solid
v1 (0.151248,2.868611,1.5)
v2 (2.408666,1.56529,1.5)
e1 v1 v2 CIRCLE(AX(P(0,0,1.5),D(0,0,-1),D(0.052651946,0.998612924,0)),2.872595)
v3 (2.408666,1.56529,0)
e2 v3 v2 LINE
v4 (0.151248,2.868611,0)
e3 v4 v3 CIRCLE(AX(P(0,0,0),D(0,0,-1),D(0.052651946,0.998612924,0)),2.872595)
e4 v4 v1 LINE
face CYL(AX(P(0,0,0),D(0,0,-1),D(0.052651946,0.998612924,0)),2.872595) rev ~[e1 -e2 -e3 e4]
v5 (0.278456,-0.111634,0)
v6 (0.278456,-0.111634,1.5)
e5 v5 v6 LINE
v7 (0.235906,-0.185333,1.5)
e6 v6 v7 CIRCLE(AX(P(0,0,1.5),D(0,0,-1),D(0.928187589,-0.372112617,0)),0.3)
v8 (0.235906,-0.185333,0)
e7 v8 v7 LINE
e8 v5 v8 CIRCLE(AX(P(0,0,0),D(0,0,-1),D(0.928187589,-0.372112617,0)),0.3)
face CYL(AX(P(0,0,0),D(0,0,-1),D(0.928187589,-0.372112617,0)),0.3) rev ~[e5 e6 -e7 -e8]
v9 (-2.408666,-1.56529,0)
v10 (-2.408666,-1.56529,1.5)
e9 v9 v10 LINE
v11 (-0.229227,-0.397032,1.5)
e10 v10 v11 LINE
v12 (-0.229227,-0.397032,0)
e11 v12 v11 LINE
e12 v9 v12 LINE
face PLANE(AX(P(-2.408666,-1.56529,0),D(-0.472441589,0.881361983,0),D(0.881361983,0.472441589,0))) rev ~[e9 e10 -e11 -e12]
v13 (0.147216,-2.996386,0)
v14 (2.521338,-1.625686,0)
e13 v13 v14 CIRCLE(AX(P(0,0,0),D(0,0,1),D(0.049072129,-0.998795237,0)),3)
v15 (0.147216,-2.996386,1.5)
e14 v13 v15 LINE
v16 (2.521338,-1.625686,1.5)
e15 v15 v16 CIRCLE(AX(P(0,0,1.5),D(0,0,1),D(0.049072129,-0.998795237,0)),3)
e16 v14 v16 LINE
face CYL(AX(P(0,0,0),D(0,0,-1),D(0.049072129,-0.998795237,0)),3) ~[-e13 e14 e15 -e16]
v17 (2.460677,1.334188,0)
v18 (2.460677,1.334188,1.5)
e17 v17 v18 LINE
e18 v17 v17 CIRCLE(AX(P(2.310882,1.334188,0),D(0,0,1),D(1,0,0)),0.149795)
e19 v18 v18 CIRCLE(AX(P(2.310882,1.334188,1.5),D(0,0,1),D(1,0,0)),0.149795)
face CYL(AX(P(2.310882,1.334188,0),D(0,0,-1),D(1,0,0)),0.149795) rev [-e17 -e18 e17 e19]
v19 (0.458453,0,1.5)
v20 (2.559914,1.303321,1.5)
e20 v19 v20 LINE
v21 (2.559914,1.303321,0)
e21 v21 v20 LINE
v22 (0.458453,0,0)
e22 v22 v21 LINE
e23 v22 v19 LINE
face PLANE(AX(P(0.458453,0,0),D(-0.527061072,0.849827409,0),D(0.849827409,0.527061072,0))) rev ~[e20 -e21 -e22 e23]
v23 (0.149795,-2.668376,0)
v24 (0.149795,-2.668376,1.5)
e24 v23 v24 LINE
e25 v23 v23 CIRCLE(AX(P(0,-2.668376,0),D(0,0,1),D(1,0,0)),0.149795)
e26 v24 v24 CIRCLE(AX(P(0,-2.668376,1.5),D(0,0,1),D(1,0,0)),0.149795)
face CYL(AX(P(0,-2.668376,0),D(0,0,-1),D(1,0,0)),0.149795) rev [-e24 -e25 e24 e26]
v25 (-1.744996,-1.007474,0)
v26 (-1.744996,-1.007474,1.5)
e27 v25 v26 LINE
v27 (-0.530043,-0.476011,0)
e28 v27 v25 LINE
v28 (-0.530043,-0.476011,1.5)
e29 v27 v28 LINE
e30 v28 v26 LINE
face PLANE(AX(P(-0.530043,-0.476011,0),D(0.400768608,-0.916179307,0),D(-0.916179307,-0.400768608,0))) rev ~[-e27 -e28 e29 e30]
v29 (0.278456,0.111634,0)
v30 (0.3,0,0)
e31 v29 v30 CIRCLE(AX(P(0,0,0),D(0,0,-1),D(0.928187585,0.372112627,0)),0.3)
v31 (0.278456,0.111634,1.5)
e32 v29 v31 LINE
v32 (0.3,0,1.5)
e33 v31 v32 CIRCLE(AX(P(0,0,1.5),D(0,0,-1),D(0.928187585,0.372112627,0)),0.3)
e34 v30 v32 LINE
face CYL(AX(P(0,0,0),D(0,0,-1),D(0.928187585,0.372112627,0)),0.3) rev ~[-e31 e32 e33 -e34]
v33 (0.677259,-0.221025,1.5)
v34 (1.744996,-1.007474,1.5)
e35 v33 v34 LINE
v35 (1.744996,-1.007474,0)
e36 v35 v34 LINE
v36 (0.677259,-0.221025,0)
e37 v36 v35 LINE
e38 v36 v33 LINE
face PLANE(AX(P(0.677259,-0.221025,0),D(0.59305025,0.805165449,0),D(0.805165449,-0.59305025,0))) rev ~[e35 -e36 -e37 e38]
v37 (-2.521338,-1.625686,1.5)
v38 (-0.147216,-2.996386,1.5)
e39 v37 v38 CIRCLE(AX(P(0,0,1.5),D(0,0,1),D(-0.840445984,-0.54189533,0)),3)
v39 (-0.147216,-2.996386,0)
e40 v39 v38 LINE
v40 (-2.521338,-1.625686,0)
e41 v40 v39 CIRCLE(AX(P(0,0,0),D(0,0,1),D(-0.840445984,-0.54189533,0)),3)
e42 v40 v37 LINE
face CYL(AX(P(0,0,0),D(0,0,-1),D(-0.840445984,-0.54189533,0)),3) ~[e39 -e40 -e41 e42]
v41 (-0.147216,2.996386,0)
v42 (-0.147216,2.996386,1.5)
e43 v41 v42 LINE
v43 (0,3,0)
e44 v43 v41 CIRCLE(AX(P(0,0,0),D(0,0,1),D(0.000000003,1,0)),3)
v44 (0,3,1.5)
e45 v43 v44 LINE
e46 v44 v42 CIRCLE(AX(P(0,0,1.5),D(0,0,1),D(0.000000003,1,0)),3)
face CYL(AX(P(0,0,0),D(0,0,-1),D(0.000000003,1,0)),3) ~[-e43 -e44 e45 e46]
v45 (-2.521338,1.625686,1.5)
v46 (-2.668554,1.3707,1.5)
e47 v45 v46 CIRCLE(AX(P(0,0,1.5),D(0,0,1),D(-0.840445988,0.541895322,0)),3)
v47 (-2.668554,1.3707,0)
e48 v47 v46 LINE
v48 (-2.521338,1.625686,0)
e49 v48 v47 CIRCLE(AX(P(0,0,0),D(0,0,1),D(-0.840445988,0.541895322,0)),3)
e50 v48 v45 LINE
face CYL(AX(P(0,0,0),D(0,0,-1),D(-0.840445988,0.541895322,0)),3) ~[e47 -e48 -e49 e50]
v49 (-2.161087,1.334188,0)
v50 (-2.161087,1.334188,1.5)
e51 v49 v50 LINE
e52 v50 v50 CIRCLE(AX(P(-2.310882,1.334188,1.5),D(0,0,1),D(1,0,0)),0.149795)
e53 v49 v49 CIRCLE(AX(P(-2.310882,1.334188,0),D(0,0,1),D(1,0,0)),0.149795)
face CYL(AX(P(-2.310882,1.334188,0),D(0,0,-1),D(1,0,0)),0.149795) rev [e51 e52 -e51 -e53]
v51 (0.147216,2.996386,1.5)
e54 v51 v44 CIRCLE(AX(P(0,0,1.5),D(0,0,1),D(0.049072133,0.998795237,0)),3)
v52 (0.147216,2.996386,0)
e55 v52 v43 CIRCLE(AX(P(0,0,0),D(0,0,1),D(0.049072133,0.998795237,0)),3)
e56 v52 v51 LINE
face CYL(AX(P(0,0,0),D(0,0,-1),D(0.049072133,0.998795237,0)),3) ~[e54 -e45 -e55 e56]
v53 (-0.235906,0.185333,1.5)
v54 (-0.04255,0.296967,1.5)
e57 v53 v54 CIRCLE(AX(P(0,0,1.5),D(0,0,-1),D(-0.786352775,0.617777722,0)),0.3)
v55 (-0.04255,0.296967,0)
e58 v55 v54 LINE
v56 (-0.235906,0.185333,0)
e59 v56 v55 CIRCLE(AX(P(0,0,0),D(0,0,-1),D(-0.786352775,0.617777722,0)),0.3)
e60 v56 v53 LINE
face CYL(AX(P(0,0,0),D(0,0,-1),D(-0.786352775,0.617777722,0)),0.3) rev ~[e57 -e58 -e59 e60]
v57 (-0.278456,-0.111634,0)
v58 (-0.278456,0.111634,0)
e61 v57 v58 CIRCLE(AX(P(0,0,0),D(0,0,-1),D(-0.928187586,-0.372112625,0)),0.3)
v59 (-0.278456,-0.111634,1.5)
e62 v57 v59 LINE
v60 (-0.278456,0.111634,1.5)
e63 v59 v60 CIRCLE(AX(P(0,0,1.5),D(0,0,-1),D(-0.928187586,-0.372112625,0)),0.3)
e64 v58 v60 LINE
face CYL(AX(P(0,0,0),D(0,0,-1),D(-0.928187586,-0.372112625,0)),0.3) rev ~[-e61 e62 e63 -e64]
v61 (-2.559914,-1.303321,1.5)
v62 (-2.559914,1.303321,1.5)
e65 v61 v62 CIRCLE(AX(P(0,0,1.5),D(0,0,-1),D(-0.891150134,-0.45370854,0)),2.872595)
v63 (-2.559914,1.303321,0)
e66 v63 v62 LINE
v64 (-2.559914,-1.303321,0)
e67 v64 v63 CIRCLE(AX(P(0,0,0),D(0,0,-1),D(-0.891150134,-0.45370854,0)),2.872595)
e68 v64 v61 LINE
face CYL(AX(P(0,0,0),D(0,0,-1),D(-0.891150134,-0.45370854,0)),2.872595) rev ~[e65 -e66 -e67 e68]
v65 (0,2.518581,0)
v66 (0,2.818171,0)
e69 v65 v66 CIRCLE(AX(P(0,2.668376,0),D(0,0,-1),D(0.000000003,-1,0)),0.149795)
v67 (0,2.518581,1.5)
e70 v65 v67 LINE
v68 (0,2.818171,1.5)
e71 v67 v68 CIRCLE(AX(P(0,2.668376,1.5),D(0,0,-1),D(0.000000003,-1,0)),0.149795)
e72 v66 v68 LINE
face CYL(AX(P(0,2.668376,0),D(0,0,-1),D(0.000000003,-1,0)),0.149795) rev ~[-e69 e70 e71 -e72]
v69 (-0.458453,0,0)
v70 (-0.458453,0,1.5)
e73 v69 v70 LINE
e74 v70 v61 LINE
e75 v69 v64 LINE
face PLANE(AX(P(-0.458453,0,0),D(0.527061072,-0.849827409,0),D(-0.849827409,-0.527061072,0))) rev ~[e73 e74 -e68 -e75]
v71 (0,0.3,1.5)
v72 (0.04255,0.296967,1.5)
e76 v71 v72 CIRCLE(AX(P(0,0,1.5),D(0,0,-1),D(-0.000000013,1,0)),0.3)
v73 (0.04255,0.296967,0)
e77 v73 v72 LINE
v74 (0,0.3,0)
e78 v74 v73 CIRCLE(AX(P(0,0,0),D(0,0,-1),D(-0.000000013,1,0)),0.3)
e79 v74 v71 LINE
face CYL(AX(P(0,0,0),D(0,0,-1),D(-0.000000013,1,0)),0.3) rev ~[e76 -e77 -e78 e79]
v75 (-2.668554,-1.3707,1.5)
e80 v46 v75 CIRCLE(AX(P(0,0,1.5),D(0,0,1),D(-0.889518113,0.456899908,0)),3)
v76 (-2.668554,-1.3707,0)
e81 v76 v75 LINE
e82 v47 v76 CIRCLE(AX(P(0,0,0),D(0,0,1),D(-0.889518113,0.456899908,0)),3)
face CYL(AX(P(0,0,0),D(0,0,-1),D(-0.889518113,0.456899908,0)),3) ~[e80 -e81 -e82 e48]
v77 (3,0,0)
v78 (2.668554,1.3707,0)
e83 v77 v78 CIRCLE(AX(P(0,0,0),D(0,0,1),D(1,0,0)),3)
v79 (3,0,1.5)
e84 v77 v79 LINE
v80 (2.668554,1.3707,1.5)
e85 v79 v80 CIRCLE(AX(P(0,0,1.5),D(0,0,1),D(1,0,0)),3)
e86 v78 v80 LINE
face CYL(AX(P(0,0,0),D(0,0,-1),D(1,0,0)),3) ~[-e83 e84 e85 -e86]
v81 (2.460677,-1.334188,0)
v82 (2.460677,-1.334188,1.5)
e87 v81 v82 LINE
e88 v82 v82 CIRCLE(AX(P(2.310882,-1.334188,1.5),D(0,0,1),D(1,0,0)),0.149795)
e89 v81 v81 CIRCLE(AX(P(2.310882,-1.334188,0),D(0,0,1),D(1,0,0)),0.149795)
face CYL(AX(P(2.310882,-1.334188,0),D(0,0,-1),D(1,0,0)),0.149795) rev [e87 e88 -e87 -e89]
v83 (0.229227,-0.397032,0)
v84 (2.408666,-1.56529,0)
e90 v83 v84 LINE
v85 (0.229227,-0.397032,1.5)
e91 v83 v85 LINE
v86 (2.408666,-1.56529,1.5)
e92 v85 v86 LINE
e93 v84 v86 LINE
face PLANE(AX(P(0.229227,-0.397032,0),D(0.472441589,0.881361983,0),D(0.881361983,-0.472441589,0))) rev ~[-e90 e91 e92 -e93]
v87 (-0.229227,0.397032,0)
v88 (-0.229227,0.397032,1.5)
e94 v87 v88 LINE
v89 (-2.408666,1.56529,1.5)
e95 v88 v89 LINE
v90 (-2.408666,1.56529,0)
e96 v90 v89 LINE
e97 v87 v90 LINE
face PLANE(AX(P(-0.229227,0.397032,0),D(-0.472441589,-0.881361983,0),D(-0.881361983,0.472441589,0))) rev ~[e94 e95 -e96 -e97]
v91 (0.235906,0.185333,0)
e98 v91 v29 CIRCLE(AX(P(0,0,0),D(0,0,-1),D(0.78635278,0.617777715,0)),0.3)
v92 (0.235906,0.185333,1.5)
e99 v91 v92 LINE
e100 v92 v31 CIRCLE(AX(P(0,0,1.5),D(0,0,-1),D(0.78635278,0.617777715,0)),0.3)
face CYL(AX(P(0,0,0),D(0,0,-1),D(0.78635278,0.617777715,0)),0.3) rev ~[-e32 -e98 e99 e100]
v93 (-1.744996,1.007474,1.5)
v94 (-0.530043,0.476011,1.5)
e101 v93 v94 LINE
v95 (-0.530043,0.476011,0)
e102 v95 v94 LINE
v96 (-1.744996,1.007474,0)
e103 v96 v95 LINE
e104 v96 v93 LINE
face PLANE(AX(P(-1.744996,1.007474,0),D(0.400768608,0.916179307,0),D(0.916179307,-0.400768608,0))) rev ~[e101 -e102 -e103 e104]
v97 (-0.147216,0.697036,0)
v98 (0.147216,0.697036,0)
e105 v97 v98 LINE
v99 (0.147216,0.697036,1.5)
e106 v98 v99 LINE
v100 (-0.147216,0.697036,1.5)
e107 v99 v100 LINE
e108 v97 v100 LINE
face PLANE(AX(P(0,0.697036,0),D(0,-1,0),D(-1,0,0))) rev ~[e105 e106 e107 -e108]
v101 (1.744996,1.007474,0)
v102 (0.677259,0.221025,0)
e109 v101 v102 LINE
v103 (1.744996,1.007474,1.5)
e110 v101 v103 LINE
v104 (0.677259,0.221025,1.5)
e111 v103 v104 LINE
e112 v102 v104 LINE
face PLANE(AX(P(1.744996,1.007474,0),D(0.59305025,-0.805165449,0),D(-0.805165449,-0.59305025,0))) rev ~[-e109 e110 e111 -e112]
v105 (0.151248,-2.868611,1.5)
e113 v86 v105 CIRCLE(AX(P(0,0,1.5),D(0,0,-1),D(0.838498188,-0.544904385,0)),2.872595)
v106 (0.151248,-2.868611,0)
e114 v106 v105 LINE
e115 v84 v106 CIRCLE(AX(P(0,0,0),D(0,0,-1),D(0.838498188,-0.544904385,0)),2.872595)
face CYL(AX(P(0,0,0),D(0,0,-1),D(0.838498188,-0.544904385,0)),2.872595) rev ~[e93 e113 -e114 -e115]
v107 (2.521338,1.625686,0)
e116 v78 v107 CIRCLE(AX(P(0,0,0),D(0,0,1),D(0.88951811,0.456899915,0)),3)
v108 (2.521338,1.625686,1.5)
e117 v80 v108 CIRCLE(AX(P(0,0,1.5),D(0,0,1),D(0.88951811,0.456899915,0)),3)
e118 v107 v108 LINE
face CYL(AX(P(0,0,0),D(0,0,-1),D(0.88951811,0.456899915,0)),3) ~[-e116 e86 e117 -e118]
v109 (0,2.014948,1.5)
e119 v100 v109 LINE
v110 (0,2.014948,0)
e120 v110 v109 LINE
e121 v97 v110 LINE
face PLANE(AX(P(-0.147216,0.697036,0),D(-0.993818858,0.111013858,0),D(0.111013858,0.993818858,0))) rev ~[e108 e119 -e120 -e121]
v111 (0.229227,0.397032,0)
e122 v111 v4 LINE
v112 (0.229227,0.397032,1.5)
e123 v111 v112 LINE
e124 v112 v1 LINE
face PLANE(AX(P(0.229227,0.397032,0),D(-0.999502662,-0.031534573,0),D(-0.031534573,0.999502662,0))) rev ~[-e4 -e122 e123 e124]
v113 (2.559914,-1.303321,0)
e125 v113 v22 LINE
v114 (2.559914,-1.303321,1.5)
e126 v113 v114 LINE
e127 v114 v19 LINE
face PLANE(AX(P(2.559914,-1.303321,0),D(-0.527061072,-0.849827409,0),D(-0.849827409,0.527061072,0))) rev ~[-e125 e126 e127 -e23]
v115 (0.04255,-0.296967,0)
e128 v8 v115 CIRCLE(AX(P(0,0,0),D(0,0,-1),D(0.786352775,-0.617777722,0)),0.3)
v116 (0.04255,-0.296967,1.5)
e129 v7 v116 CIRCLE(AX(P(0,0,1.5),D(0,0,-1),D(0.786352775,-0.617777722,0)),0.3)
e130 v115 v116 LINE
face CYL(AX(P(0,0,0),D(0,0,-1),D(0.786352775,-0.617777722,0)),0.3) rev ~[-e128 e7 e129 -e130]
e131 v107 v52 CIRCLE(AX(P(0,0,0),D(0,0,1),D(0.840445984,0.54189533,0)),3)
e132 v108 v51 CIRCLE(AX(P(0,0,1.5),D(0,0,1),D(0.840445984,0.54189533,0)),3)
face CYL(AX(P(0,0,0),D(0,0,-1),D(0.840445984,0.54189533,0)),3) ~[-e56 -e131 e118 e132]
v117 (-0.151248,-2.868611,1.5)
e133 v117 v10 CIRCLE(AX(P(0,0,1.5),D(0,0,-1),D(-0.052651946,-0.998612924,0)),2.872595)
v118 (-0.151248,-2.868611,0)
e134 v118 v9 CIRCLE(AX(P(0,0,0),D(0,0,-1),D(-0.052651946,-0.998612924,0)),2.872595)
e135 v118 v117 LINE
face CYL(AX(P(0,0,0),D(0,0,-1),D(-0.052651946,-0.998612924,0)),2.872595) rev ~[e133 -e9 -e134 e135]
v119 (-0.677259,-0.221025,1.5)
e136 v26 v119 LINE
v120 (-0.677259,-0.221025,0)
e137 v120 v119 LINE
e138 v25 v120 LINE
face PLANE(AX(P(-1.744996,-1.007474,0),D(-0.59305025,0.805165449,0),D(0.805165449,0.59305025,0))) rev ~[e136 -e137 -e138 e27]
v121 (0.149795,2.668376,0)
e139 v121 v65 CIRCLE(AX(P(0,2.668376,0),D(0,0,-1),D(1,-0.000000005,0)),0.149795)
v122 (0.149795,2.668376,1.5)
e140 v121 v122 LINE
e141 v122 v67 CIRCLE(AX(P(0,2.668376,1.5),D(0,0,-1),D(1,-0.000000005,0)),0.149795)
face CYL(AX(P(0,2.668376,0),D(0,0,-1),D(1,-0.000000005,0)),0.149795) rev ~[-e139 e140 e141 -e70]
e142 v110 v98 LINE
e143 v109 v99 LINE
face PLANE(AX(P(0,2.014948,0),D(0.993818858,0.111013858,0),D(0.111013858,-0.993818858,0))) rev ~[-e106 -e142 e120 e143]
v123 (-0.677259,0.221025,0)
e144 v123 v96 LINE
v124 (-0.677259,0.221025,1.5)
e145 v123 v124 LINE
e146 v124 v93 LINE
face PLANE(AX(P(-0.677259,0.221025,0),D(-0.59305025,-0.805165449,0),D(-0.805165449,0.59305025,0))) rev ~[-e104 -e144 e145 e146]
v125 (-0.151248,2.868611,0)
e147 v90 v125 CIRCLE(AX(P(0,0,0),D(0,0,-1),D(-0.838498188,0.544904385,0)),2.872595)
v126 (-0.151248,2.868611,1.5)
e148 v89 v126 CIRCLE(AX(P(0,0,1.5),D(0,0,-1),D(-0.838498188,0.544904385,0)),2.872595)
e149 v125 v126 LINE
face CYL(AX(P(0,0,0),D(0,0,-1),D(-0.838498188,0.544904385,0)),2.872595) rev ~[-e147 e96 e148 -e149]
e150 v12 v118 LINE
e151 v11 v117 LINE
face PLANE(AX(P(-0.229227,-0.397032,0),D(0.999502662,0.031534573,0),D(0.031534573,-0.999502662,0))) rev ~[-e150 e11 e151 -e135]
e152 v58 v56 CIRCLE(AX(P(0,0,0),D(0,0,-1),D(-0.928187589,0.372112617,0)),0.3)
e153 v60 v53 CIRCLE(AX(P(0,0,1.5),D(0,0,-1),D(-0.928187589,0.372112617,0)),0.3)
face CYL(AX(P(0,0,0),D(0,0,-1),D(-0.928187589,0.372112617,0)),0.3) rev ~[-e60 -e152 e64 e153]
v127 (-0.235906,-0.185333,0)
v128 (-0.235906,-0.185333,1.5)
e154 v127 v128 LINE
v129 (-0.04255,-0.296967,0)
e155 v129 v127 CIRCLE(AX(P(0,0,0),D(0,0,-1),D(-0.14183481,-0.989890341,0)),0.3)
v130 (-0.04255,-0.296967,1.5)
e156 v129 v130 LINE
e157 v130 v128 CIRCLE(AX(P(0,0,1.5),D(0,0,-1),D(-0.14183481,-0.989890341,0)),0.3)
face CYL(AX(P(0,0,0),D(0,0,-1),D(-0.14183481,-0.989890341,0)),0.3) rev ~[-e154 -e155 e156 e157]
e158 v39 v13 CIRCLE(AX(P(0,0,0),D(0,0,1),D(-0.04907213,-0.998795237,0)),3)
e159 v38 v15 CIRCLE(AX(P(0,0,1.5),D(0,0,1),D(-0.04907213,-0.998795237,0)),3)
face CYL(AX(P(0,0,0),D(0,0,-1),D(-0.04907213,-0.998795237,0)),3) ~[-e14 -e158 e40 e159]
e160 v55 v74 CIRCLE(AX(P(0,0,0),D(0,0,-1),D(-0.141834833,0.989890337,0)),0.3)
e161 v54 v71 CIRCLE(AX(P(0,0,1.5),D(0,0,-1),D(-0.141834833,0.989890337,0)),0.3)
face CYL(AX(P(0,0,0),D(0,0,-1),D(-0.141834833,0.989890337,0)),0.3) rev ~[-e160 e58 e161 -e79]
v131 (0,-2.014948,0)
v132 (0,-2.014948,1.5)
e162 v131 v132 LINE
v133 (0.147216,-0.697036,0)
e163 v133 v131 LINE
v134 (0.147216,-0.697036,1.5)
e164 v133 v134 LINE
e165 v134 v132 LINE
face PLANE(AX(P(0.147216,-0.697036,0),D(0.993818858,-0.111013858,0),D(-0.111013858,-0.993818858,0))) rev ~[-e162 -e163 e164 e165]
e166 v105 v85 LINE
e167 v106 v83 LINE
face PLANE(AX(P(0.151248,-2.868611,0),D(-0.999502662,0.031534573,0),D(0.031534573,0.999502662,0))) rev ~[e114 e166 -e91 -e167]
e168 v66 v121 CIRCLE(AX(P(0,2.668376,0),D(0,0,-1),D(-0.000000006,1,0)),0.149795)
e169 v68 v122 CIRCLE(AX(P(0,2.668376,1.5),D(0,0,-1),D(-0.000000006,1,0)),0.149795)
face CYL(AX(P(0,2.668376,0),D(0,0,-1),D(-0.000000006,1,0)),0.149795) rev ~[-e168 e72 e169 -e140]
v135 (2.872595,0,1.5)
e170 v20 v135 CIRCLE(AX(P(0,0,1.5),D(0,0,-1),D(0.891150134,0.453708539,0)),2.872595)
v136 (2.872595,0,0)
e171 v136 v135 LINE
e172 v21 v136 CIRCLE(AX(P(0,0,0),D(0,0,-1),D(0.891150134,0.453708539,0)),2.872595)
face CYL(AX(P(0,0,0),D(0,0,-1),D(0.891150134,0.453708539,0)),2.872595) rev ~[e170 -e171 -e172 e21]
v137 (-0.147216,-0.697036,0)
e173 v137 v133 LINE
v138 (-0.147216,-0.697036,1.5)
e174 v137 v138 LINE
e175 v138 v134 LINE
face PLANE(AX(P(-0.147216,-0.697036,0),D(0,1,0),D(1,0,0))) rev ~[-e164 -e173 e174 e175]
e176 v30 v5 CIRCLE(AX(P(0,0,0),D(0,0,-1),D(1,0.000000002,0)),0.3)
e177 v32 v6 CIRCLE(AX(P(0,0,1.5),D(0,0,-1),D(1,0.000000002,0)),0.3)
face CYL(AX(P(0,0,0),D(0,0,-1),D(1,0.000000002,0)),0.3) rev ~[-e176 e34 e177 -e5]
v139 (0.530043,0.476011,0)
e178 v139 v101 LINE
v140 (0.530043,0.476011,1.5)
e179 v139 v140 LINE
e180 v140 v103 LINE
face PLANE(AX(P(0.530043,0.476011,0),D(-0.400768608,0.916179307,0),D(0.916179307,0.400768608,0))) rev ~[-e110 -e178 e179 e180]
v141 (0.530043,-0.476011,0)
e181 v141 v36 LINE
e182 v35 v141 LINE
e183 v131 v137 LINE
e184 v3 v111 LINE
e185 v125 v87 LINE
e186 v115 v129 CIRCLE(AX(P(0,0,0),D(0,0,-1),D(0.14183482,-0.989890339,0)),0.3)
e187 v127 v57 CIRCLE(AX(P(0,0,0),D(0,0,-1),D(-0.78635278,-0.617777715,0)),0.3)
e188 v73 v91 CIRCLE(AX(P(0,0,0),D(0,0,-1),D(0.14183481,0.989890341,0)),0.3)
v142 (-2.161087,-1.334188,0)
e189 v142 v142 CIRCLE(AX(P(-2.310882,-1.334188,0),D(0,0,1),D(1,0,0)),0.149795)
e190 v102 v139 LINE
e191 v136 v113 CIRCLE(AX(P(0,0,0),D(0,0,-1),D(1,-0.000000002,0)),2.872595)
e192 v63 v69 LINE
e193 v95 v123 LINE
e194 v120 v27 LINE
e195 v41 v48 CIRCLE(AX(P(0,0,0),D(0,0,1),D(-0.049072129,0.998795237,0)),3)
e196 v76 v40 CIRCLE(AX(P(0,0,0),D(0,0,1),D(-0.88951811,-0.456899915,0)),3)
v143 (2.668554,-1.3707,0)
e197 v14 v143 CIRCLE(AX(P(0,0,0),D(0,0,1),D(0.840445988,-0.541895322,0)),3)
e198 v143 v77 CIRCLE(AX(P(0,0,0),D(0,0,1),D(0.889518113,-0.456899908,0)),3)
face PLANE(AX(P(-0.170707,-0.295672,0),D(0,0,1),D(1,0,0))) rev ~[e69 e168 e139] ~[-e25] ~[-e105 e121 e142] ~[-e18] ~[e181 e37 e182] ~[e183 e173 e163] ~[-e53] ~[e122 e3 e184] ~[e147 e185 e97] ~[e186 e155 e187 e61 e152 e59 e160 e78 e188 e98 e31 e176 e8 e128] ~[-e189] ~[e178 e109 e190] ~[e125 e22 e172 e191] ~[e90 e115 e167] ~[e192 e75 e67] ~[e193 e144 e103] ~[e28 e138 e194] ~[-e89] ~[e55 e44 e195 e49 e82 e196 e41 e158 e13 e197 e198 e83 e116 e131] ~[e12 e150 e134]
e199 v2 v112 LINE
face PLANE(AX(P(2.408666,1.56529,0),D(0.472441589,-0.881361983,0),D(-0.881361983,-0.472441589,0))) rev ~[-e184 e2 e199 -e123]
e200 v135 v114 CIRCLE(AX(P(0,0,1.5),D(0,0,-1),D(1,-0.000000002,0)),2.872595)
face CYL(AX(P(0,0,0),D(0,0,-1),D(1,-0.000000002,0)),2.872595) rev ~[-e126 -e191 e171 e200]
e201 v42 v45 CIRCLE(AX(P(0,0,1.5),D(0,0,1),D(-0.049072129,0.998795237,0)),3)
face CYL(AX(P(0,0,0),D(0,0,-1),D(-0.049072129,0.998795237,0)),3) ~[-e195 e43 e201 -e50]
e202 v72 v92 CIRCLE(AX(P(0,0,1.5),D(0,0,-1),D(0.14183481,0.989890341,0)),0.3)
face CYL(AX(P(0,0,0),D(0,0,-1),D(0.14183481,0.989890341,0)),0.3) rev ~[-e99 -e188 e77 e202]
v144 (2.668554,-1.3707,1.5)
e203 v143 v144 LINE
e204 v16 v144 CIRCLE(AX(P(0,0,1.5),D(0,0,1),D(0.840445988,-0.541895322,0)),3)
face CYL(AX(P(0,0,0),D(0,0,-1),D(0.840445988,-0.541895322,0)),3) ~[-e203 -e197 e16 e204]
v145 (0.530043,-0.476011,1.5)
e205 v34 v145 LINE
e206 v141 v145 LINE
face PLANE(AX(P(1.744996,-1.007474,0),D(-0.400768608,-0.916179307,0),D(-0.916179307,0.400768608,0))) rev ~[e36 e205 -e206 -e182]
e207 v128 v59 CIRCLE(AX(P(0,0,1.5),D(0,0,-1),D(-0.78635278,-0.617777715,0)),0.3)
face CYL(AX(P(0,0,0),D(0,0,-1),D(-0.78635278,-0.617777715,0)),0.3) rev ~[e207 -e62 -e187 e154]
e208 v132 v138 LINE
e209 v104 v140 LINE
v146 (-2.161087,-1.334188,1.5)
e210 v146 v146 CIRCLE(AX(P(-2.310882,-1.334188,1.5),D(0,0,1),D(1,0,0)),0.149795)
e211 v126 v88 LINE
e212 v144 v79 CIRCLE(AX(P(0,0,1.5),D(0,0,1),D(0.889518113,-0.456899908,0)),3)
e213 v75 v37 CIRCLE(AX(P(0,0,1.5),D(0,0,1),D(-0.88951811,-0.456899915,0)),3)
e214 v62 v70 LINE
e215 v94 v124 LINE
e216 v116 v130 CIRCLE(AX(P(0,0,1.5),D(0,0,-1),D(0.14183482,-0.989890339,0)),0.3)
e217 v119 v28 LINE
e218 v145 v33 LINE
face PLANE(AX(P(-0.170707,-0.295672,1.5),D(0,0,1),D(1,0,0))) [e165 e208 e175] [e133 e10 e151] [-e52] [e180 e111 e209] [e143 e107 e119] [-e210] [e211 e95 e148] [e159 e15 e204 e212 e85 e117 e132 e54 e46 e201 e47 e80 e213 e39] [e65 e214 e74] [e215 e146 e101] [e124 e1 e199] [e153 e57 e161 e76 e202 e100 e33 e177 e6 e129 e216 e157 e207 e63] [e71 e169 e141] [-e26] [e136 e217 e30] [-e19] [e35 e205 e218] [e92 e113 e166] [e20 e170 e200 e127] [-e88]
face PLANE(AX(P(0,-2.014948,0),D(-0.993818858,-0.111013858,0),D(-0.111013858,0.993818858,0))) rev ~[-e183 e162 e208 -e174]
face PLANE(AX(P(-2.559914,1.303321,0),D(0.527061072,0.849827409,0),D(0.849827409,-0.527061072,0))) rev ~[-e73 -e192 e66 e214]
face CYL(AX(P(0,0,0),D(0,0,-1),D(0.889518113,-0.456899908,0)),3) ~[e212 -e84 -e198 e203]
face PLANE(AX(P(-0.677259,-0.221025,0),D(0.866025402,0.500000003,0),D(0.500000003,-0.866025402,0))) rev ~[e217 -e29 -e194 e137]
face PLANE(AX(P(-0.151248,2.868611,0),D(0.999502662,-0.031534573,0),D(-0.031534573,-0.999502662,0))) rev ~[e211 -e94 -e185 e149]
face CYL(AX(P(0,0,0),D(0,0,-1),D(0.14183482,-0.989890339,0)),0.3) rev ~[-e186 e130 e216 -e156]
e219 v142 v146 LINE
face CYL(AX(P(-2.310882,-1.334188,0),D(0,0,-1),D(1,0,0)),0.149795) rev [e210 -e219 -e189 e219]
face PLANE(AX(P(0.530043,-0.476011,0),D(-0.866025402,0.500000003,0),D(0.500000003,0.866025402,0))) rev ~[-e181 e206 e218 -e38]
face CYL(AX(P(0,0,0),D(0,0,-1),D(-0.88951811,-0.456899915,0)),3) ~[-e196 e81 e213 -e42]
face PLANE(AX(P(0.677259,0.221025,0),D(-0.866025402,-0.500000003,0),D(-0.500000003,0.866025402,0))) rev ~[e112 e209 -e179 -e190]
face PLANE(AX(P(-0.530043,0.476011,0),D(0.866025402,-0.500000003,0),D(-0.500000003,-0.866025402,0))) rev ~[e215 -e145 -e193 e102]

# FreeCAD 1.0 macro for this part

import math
import FreeCAD as App
import Part
import Sketcher
from FreeCAD import Vector
Q = App.Units.Quantity


def add_polygon(sketch, points):
    """Adds a closed chain of lines whose ends are joined by coincident constraints."""
    first, n = sketch.GeometryCount, len(points)
    for a, b in zip(points, points[1:] + points[:1]):
        sketch.addGeometry(Part.LineSegment(App.Vector(*a, 0), App.Vector(*b, 0)), False)
    for i in range(n):
        sketch.addConstraint(Sketcher.Constraint("Coincident", first + i, 2, first + (i + 1) % n, 1))

doc = App.newDocument("Part")
body = doc.addObject("PartDesign::Body", "Body")

# Sketch on XY plane
sketch1 = doc.addObject("Sketcher::SketchObject", "Sketch")
body.addObject(sketch1)
sketch1.AttachmentSupport = (doc.XY_Plane, [""])
sketch1.MapMode = "FlatFace"
sketch1.addGeometry(Part.ArcOfCircle(Part.Circle(Vector(0, 0, 0), Vector(0, 0, 1), 3), math.radians(93), math.radians(147)), False)  # 0
sketch1.addGeometry(Part.ArcOfCircle(Part.Circle(Vector(0, 0, 0), Vector(0, 0, 1), 3), math.radians(147.19), math.radians(152.81)), False)  # 1
sketch1.addGeometry(Part.ArcOfCircle(Part.Circle(Vector(0, 0, 0), Vector(0, 0, 1), 3), math.radians(153), math.radians(207)), False)  # 2
sketch1.addGeometry(Part.ArcOfCircle(Part.Circle(Vector(0, 0, 0), Vector(0, 0, 1), 3), math.radians(-152.81), math.radians(-147.19)), False)  # 3
sketch1.addGeometry(Part.ArcOfCircle(Part.Circle(Vector(0, 0, 0), Vector(0, 0, 1), 3), math.radians(-147), math.radians(-93)), False)  # 4
sketch1.addGeometry(Part.ArcOfCircle(Part.Circle(Vector(0, 0, 0), Vector(0, 0, 1), 3), math.radians(-92.81), math.radians(-87.19)), False)  # 5
sketch1.addGeometry(Part.ArcOfCircle(Part.Circle(Vector(0, 0, 0), Vector(0, 0, 1), 3), math.radians(-87), math.radians(-33)), False)  # 6
sketch1.addGeometry(Part.ArcOfCircle(Part.Circle(Vector(0, 0, 0), Vector(0, 0, 1), 3), math.radians(-32.81), math.radians(-27.19)), False)  # 7
sketch1.addGeometry(Part.ArcOfCircle(Part.Circle(Vector(0, 0, 0), Vector(0, 0, 1), 3), math.radians(-27), math.radians(0)), False)  # 8
sketch1.addGeometry(Part.ArcOfCircle(Part.Circle(Vector(0, 0, 0), Vector(0, 0, 1), 3), math.radians(0), math.radians(27)), False)  # 9
sketch1.addGeometry(Part.ArcOfCircle(Part.Circle(Vector(0, 0, 0), Vector(0, 0, 1), 3), math.radians(27.19), math.radians(32.81)), False)  # 10
sketch1.addGeometry(Part.ArcOfCircle(Part.Circle(Vector(0, 0, 0), Vector(0, 0, 1), 3), math.radians(33), math.radians(87)), False)  # 11
sketch1.addGeometry(Part.ArcOfCircle(Part.Circle(Vector(0, 0, 0), Vector(0, 0, 1), 3), math.radians(87.19), math.radians(90)), False)  # 12
sketch1.addGeometry(Part.ArcOfCircle(Part.Circle(Vector(0, 0, 0), Vector(0, 0, 1), 3), math.radians(90), math.radians(92.81)), False)  # 13
sketch1.addGeometry(Part.ArcOfCircle(Part.Circle(Vector(0, 0, 0), Vector(0, 0, 1), 2.873), math.radians(93), math.radians(147)), False)  # 14
sketch1.addGeometry(Part.LineSegment(Vector(-0.151, 2.869, 0), Vector(-0.229, 0.397, 0)), False)  # 15
sketch1.addGeometry(Part.LineSegment(Vector(-0.229, 0.397, 0), Vector(-2.409, 1.565, 0)), False)  # 16
sketch1.addGeometry(Part.ArcOfCircle(Part.Circle(Vector(0, 2.668, 0), Vector(0, 0, 1), 0.15), math.radians(90), math.radians(270)), False)  # 17
sketch1.addGeometry(Part.ArcOfCircle(Part.Circle(Vector(0, 2.668, 0), Vector(0, 0, 1), 0.15), math.radians(0), math.radians(90)), False)  # 18
sketch1.addGeometry(Part.ArcOfCircle(Part.Circle(Vector(0, 2.668, 0), Vector(0, 0, 1), 0.15), math.radians(-90), math.radians(0)), False)  # 19
sketch1.addGeometry(Part.ArcOfCircle(Part.Circle(Vector(0, 0, 0), Vector(0, 0, 1), 0.3), math.radians(90), math.radians(98.15)), False)  # 20
sketch1.addGeometry(Part.ArcOfCircle(Part.Circle(Vector(0, 0, 0), Vector(0, 0, 1), 0.3), math.radians(81.85), math.radians(90)), False)  # 21
sketch1.addGeometry(Part.ArcOfCircle(Part.Circle(Vector(0, 0, 0), Vector(0, 0, 1), 0.3), math.radians(38), math.radians(82)), False)  # 22
sketch1.addGeometry(Part.ArcOfCircle(Part.Circle(Vector(0, 0, 0), Vector(0, 0, 1), 0.3), math.radians(21.85), math.radians(38.15)), False)  # 23
sketch1.addGeometry(Part.ArcOfCircle(Part.Circle(Vector(0, 0, 0), Vector(0, 0, 1), 0.3), math.radians(0), math.radians(22)), False)  # 24
sketch1.addGeometry(Part.ArcOfCircle(Part.Circle(Vector(0, 0, 0), Vector(0, 0, 1), 0.3), math.radians(-22), math.radians(0)), False)  # 25
sketch1.addGeometry(Part.ArcOfCircle(Part.Circle(Vector(0, 0, 0), Vector(0, 0, 1), 0.3), math.radians(-38.15), math.radians(-21.85)), False)  # 26
sketch1.addGeometry(Part.ArcOfCircle(Part.Circle(Vector(0, 0, 0), Vector(0, 0, 1), 0.3), math.radians(-82), math.radians(-38)), False)  # 27
sketch1.addGeometry(Part.ArcOfCircle(Part.Circle(Vector(0, 0, 0), Vector(0, 0, 1), 0.3), math.radians(-98.15), math.radians(-81.85)), False)  # 28
sketch1.addGeometry(Part.ArcOfCircle(Part.Circle(Vector(0, 0, 0), Vector(0, 0, 1), 0.3), math.radians(-142), math.radians(-98)), False)  # 29
sketch1.addGeometry(Part.ArcOfCircle(Part.Circle(Vector(0, 0, 0), Vector(0, 0, 1), 0.3), math.radians(-158.15), math.radians(-141.85)), False)  # 30
sketch1.addGeometry(Part.ArcOfCircle(Part.Circle(Vector(0, 0, 0), Vector(0, 0, 1), 0.3), math.radians(158), math.radians(202)), False)  # 31
sketch1.addGeometry(Part.ArcOfCircle(Part.Circle(Vector(0, 0, 0), Vector(0, 0, 1), 0.3), math.radians(141.85), math.radians(158.15)), False)  # 32
sketch1.addGeometry(Part.ArcOfCircle(Part.Circle(Vector(0, 0, 0), Vector(0, 0, 1), 0.3), math.radians(98), math.radians(142)), False)  # 33
add_polygon(sketch1, [(-0.147, 0.697), (0, 2.015), (0.147, 0.697)])  # lines 34-36
sketch1.addGeometry(Part.Circle(Vector(-2.311, 1.334, 0), Vector(0, 0, 1), 0.15), False)  # 37
sketch1.addGeometry(Part.LineSegment(Vector(-2.56, 1.303, 0), Vector(-0.458, 0, 0)), False)  # 38
sketch1.addGeometry(Part.LineSegment(Vector(-0.458, 0, 0), Vector(-2.56, -1.303, 0)), False)  # 39
sketch1.addGeometry(Part.ArcOfCircle(Part.Circle(Vector(0, 0, 0), Vector(0, 0, 1), 2.873), math.radians(153), math.radians(207)), False)  # 40
add_polygon(sketch1, [(-1.745, 1.007), (-0.53, 0.476), (-0.677, 0.221)])  # lines 41-43
sketch1.addGeometry(Part.ArcOfCircle(Part.Circle(Vector(0, 0, 0), Vector(0, 0, 1), 2.873), math.radians(33), math.radians(87)), False)  # 44
sketch1.addGeometry(Part.LineSegment(Vector(2.409, 1.565, 0), Vector(0.229, 0.397, 0)), False)  # 45
sketch1.addGeometry(Part.LineSegment(Vector(0.229, 0.397, 0), Vector(0.151, 2.869, 0)), False)  # 46
add_polygon(sketch1, [(-0.677, -0.221), (-0.53, -0.476), (-1.745, -1.007)])  # lines 47-49
sketch1.addGeometry(Part.LineSegment(Vector(-2.409, -1.565, 0), Vector(-0.229, -0.397, 0)), False)  # 50
sketch1.addGeometry(Part.LineSegment(Vector(-0.229, -0.397, 0), Vector(-0.151, -2.869, 0)), False)  # 51
sketch1.addGeometry(Part.ArcOfCircle(Part.Circle(Vector(0, 0, 0), Vector(0, 0, 1), 2.873), math.radians(-147), math.radians(-93)), False)  # 52
sketch1.addGeometry(Part.Circle(Vector(-2.311, -1.334, 0), Vector(0, 0, 1), 0.15), False)  # 53
sketch1.addGeometry(Part.ArcOfCircle(Part.Circle(Vector(0, 0, 0), Vector(0, 0, 1), 2.873), math.radians(0), math.radians(27)), False)  # 54
sketch1.addGeometry(Part.ArcOfCircle(Part.Circle(Vector(0, 0, 0), Vector(0, 0, 1), 2.873), math.radians(-27), math.radians(0)), False)  # 55
sketch1.addGeometry(Part.LineSegment(Vector(2.56, -1.303, 0), Vector(0.458, 0, 0)), False)  # 56
sketch1.addGeometry(Part.LineSegment(Vector(0.458, 0, 0), Vector(2.56, 1.303, 0)), False)  # 57
sketch1.addGeometry(Part.Circle(Vector(2.311, 1.334, 0), Vector(0, 0, 1), 0.15), False)  # 58
add_polygon(sketch1, [(0.677, 0.221), (0.53, 0.476), (1.745, 1.007)])  # lines 59-61
add_polygon(sketch1, [(-0.147, -0.697), (0.147, -0.697), (0, -2.015)])  # lines 62-64
sketch1.addGeometry(Part.LineSegment(Vector(0.151, -2.869, 0), Vector(0.229, -0.397, 0)), False)  # 65
sketch1.addGeometry(Part.LineSegment(Vector(0.229, -0.397, 0), Vector(2.409, -1.565, 0)), False)  # 66
sketch1.addGeometry(Part.ArcOfCircle(Part.Circle(Vector(0, 0, 0), Vector(0, 0, 1), 2.873), math.radians(-87), math.radians(-33)), False)  # 67
sketch1.addGeometry(Part.Circle(Vector(0, -2.668, 0), Vector(0, 0, 1), 0.15), False)  # 68
add_polygon(sketch1, [(0.53, -0.476), (0.677, -0.221), (1.745, -1.007)])  # lines 69-71
sketch1.addGeometry(Part.Circle(Vector(2.311, -1.334, 0), Vector(0, 0, 1), 0.15), False)  # 72
sketch1.addConstraint(Sketcher.Constraint("Tangent", 0, 2, 1, 1))
sketch1.addConstraint(Sketcher.Constraint("Tangent", 1, 2, 2, 1))
sketch1.addConstraint(Sketcher.Constraint("Tangent", 2, 2, 3, 1))
sketch1.addConstraint(Sketcher.Constraint("Tangent", 3, 2, 4, 1))
sketch1.addConstraint(Sketcher.Constraint("Tangent", 4, 2, 5, 1))
sketch1.addConstraint(Sketcher.Constraint("Tangent", 5, 2, 6, 1))
sketch1.addConstraint(Sketcher.Constraint("Tangent", 6, 2, 7, 1))
sketch1.addConstraint(Sketcher.Constraint("Tangent", 7, 2, 8, 1))
sketch1.addConstraint(Sketcher.Constraint("Tangent", 8, 2, 9, 1))
sketch1.addConstraint(Sketcher.Constraint("Tangent", 9, 2, 10, 1))
sketch1.addConstraint(Sketcher.Constraint("Tangent", 10, 2, 11, 1))
sketch1.addConstraint(Sketcher.Constraint("Tangent", 11, 2, 12, 1))
sketch1.addConstraint(Sketcher.Constraint("Tangent", 12, 2, 13, 1))
sketch1.addConstraint(Sketcher.Constraint("Tangent", 13, 2, 0, 1))
sketch1.addConstraint(Sketcher.Constraint("Coincident", 14, 1, 15, 1))
sketch1.addConstraint(Sketcher.Constraint("Coincident", 15, 2, 16, 1))
sketch1.addConstraint(Sketcher.Constraint("Coincident", 16, 2, 14, 2))
sketch1.addConstraint(Sketcher.Constraint("Tangent", 17, 1, 18, 2))
sketch1.addConstraint(Sketcher.Constraint("Tangent", 18, 1, 19, 2))
sketch1.addConstraint(Sketcher.Constraint("Tangent", 19, 1, 17, 2))
sketch1.addConstraint(Sketcher.Constraint("Tangent", 20, 1, 21, 2))
sketch1.addConstraint(Sketcher.Constraint("Tangent", 21, 1, 22, 2))
sketch1.addConstraint(Sketcher.Constraint("Tangent", 22, 1, 23, 2))
sketch1.addConstraint(Sketcher.Constraint("Tangent", 23, 1, 24, 2))
sketch1.addConstraint(Sketcher.Constraint("Tangent", 24, 1, 25, 2))
sketch1.addConstraint(Sketcher.Constraint("Tangent", 25, 1, 26, 2))
sketch1.addConstraint(Sketcher.Constraint("Tangent", 26, 1, 27, 2))
sketch1.addConstraint(Sketcher.Constraint("Tangent", 27, 1, 28, 2))
sketch1.addConstraint(Sketcher.Constraint("Tangent", 28, 1, 29, 2))
sketch1.addConstraint(Sketcher.Constraint("Tangent", 29, 1, 30, 2))
sketch1.addConstraint(Sketcher.Constraint("Tangent", 30, 1, 31, 2))
sketch1.addConstraint(Sketcher.Constraint("Tangent", 31, 1, 32, 2))
sketch1.addConstraint(Sketcher.Constraint("Tangent", 32, 1, 33, 2))
sketch1.addConstraint(Sketcher.Constraint("Tangent", 33, 1, 20, 2))
sketch1.addConstraint(Sketcher.Constraint("Coincident", 38, 2, 39, 1))
sketch1.addConstraint(Sketcher.Constraint("Coincident", 39, 2, 40, 2))
sketch1.addConstraint(Sketcher.Constraint("Coincident", 40, 1, 38, 1))
sketch1.addConstraint(Sketcher.Constraint("Coincident", 44, 1, 45, 1))
sketch1.addConstraint(Sketcher.Constraint("Coincident", 45, 2, 46, 1))
sketch1.addConstraint(Sketcher.Constraint("Coincident", 46, 2, 44, 2))
sketch1.addConstraint(Sketcher.Constraint("Coincident", 50, 2, 51, 1))
sketch1.addConstraint(Sketcher.Constraint("Coincident", 51, 2, 52, 2))
sketch1.addConstraint(Sketcher.Constraint("Coincident", 52, 1, 50, 1))
sketch1.addConstraint(Sketcher.Constraint("Tangent", 54, 1, 55, 2))
sketch1.addConstraint(Sketcher.Constraint("Coincident", 55, 1, 56, 1))
sketch1.addConstraint(Sketcher.Constraint("Coincident", 56, 2, 57, 1))
sketch1.addConstraint(Sketcher.Constraint("Coincident", 57, 2, 54, 2))
sketch1.addConstraint(Sketcher.Constraint("Coincident", 65, 2, 66, 1))
sketch1.addConstraint(Sketcher.Constraint("Coincident", 66, 2, 67, 2))
sketch1.addConstraint(Sketcher.Constraint("Coincident", 67, 1, 65, 1))
sketch1.addConstraint(Sketcher.Constraint("Horizontal", 36))
sketch1.addConstraint(Sketcher.Constraint("Horizontal", 62))
sketch1.addConstraint(Sketcher.Constraint("Coincident", 0, 3, -1, 1))
sketch1.addConstraint(Sketcher.Constraint("Coincident", 2, 3, -1, 1))
sketch1.addConstraint(Sketcher.Constraint("Coincident", 4, 3, -1, 1))
sketch1.addConstraint(Sketcher.Constraint("Coincident", 6, 3, -1, 1))
sketch1.addConstraint(Sketcher.Constraint("Coincident", 8, 3, -1, 1))
sketch1.addConstraint(Sketcher.Constraint("Coincident", 10, 3, -1, 1))
sketch1.addConstraint(Sketcher.Constraint("Coincident", 14, 3, -1, 1))
sketch1.addConstraint(Sketcher.Constraint("Coincident", 20, 3, -1, 1))
sketch1.addConstraint(Sketcher.Constraint("Coincident", 22, 3, -1, 1))
sketch1.addConstraint(Sketcher.Constraint("Coincident", 24, 3, -1, 1))
sketch1.addConstraint(Sketcher.Constraint("Coincident", 26, 3, -1, 1))
sketch1.addConstraint(Sketcher.Constraint("Coincident", 28, 3, -1, 1))
sketch1.addConstraint(Sketcher.Constraint("Coincident", 30, 3, -1, 1))
sketch1.addConstraint(Sketcher.Constraint("Coincident", 40, 3, -1, 1))
sketch1.addConstraint(Sketcher.Constraint("Coincident", 44, 3, -1, 1))
sketch1.addConstraint(Sketcher.Constraint("Coincident", 52, 3, -1, 1))
sketch1.addConstraint(Sketcher.Constraint("Coincident", 54, 3, -1, 1))
sketch1.addConstraint(Sketcher.Constraint("Coincident", 67, 3, -1, 1))
sketch1.addConstraint(Sketcher.Constraint("Equal", 11, 12))
sketch1.addConstraint(Sketcher.Constraint("Equal", 30, 31))
sketch1.addConstraint(Sketcher.Constraint("Equal", 19, 37))
sketch1.addConstraint(Sketcher.Constraint("Equal", 14, 40))
sketch1.addConstraint(Sketcher.Constraint("Equal", 40, 44))
sketch1.addConstraint(Sketcher.Constraint("Equal", 44, 52))
sketch1.addConstraint(Sketcher.Constraint("Equal", 37, 53))
sketch1.addConstraint(Sketcher.Constraint("Equal", 52, 54))
sketch1.addConstraint(Sketcher.Constraint("Equal", 54, 55))
sketch1.addConstraint(Sketcher.Constraint("Equal", 53, 58))
sketch1.addConstraint(Sketcher.Constraint("Equal", 55, 67))
sketch1.addConstraint(Sketcher.Constraint("Equal", 58, 68))
sketch1.addConstraint(Sketcher.Constraint("Equal", 68, 72))
sketch1.addConstraint(Sketcher.Constraint("Symmetric", 53, 3, 58, 3, -1, 1))
sketch1.addConstraint(Sketcher.Constraint("Symmetric", 17, 3, 68, 3, -1, 1))
sketch1.addConstraint(Sketcher.Constraint("Symmetric", 37, 3, 72, 3, -1, 1))
sketch1.addConstraint(Sketcher.Constraint("Symmetric", 45, 2, 50, 2, -1, 1))
sketch1.addConstraint(Sketcher.Constraint("Symmetric", 38, 2, 56, 2, -1, 1))
sketch1.addConstraint(Sketcher.Constraint("Symmetric", 47, 2, 59, 2, -1, 1))
sketch1.addConstraint(Sketcher.Constraint("Symmetric", 48, 2, 60, 2, -1, 1))
sketch1.addConstraint(Sketcher.Constraint("Symmetric", 49, 2, 61, 2, -1, 1))
sketch1.addConstraint(Sketcher.Constraint("Symmetric", 36, 2, 62, 2, -1, 1))
sketch1.addConstraint(Sketcher.Constraint("Symmetric", 34, 2, 63, 2, -1, 1))
sketch1.addConstraint(Sketcher.Constraint("Symmetric", 15, 2, 65, 2, -1, 1))
sketch1.addConstraint(Sketcher.Constraint("Symmetric", 42, 2, 69, 2, -1, 1))
sketch1.addConstraint(Sketcher.Constraint("Symmetric", 43, 2, 70, 2, -1, 1))
sketch1.addConstraint(Sketcher.Constraint("Symmetric", 41, 2, 71, 2, -1, 1))
sketch1.addConstraint(Sketcher.Constraint("Symmetric", 37, 3, 58, 3, -2))
sketch1.addConstraint(Sketcher.Constraint("Symmetric", 15, 2, 45, 2, -2))
sketch1.addConstraint(Sketcher.Constraint("Symmetric", 41, 2, 59, 2, -2))
sketch1.addConstraint(Sketcher.Constraint("Symmetric", 43, 2, 60, 2, -2))
sketch1.addConstraint(Sketcher.Constraint("Symmetric", 42, 2, 61, 2, -2))
sketch1.addConstraint(Sketcher.Constraint("PointOnObject", 17, 3, -2))
sketch1.addConstraint(Sketcher.Constraint("PointOnObject", 8, 2, -1))
sketch1.addConstraint(Sketcher.Constraint("PointOnObject", 12, 2, -2))
sketch1.addConstraint(Sketcher.Constraint("PointOnObject", 17, 1, -2))
sketch1.addConstraint(Sketcher.Constraint("PointOnObject", 19, 1, -2))
sketch1.addConstraint(Sketcher.Constraint("PointOnObject", 20, 1, -2))
sketch1.addConstraint(Sketcher.Constraint("PointOnObject", 24, 1, -1))
sketch1.addConstraint(Sketcher.Constraint("PointOnObject", 34, 2, -2))
sketch1.addConstraint(Sketcher.Constraint("PointOnObject", 38, 2, -1))
sketch1.addConstraint(Sketcher.Constraint("PointOnObject", 54, 1, -1))
sketch1.addConstraint(Sketcher.Constraint("Parallel", 45, 50))
sketch1.addConstraint(Sketcher.Constraint("Parallel", 46, 51))
sketch1.addConstraint(Sketcher.Constraint("Parallel", 38, 56))
sketch1.addConstraint(Sketcher.Constraint("Parallel", 39, 57))
sketch1.addConstraint(Sketcher.Constraint("Parallel", 35, 64))
sketch1.addConstraint(Sketcher.Constraint("Parallel", 15, 65))
sketch1.addConstraint(Sketcher.Constraint("Parallel", 16, 66))
sketch1.addConstraint(Sketcher.Constraint("Horizontal", 4, 2, 5, 2))
sketch1.addConstraint(Sketcher.Constraint("Horizontal", 3, 2, 6, 2))
sketch1.addConstraint(Sketcher.Constraint("Horizontal", 2, 2, 7, 2))
sketch1.addConstraint(Sketcher.Constraint("Horizontal", 1, 2, 9, 2))
sketch1.addConstraint(Sketcher.Constraint("Horizontal", 0, 2, 10, 2))
sketch1.addConstraint(Sketcher.Constraint("Horizontal", 11, 2, 13, 2))
sketch1.addConstraint(Sketcher.Constraint("Horizontal", 19, 3, 18, 1))
sketch1.addConstraint(Sketcher.Constraint("Horizontal", 27, 1, 28, 1))
sketch1.addConstraint(Sketcher.Constraint("Horizontal", 26, 1, 29, 1))
sketch1.addConstraint(Sketcher.Constraint("Horizontal", 25, 1, 30, 1))
sketch1.addConstraint(Sketcher.Constraint("Horizontal", 23, 1, 31, 1))
sketch1.addConstraint(Sketcher.Constraint("Horizontal", 22, 1, 32, 1))
sketch1.addConstraint(Sketcher.Constraint("Horizontal", 21, 1, 33, 1))
sketch1.addConstraint(Sketcher.Constraint("Horizontal", 16, 2, 44, 1))
sketch1.addConstraint(Sketcher.Constraint("Horizontal", 14, 1, 46, 2))
sketch1.addConstraint(Sketcher.Constraint("Horizontal", 39, 2, 55, 1))
sketch1.addConstraint(Sketcher.Constraint("Vertical", 1, 2, 2, 2))
sketch1.addConstraint(Sketcher.Constraint("Vertical", 0, 2, 3, 2))
sketch1.addConstraint(Sketcher.Constraint("Vertical", 5, 2, 11, 2))
sketch1.addConstraint(Sketcher.Constraint("Vertical", 23, 1, 25, 1))
sketch1.addConstraint(Sketcher.Constraint("Vertical", 22, 1, 26, 1))
sketch1.addConstraint(Sketcher.Constraint("Vertical", 21, 1, 27, 1))
sketch1.addConstraint(Sketcher.Constraint("Vertical", 11, 2, 35, 2))
sketch1.addConstraint(Sketcher.Constraint("Vertical", 13, 2, 36, 2))
sketch1.addConstraint(Sketcher.Constraint("Equal", 15, 16))
sketch1.addConstraint(Sketcher.Constraint("Equal", 16, 38))
sketch1.addConstraint(Sketcher.Constraint("Equal", 35, 41))
sketch1.addConstraint(Sketcher.Constraint("Equal", 41, 43))
sketch1.addConstraint(Sketcher.Constraint("Radius", 0, Q("3 mm")))
sketch1.addConstraint(Sketcher.Constraint("Radius", 20, Q("0.3 mm")))
sketch1.addConstraint(Sketcher.Constraint("Angle", 42, Q("-120 deg")))
sketch1.addConstraint(Sketcher.Constraint("Diameter", 37, Q("0.29959 mm")))
sketch1.addConstraint(Sketcher.Constraint("Radius", 14, Q("2.872595 mm")))
sketch1.addConstraint(Sketcher.Constraint("DistanceY", -1, 1, 1, 2, Q("1.3707 mm")))
sketch1.addConstraint(Sketcher.Constraint("Distance", 15, Q("2.472808 mm")))
sketch1.addConstraint(Sketcher.Constraint("Distance", 34, Q("1.326108 mm")))
sketch1.addConstraint(Sketcher.Constraint("DistanceX", 36, 2, 36, 1, Q("0.294433 mm")))
sketch1.addConstraint(Sketcher.Constraint("DistanceX", 37, 3, -1, 1, Q("2.310882 mm")))
sketch1.addConstraint(Sketcher.Constraint("DistanceY", -1, 1, 37, 3, Q("1.334188 mm")))
sketch1.addConstraint(Sketcher.Constraint("DistanceY", -1, 1, 14, 1, Q("2.868611 mm")))
sketch1.addConstraint(Sketcher.Constraint("DistanceY", -1, 1, 16, 2, Q("1.56529 mm")))
sketch1.addConstraint(Sketcher.Constraint("DistanceY", -1, 1, 17, 1, Q("2.818171 mm")))
sketch1.addConstraint(Sketcher.Constraint("DistanceX", -1, 1, 21, 1, Q("0.04255 mm")))
sketch1.addConstraint(Sketcher.Constraint("DistanceY", 39, 2, -1, 1, Q("1.303321 mm")))
sketch1.addConstraint(Sketcher.Constraint("DistanceY", -1, 1, 41, 2, Q("0.476011 mm")))
sketch1.addConstraint(Sketcher.Constraint("DistanceX", 42, 2, -1, 1, Q("0.677259 mm")))
sketch1.addConstraint(Sketcher.Constraint("Distance", 42, Q("0.294433 mm")))
sketch1.addConstraint(Sketcher.Constraint("DistanceX", 0, 2, -1, 1, Q("2.521338 mm")))
sketch1.addConstraint(Sketcher.Constraint("DistanceX", -1, 1, 22, 1, Q("0.235906 mm")))
sketch1.addConstraint(Sketcher.Constraint("DistanceX", -1, 1, 23, 1, Q("0.278456 mm")))
sketch1.addConstraint(Sketcher.Constraint("DistanceY", -1, 1, 34, 2, Q("2.014948 mm")))
pad1 = doc.addObject("PartDesign::Pad", "Pad")
body.addObject(pad1)
pad1.Profile = sketch1
pad1.Length = 1.5

doc.recompute()
